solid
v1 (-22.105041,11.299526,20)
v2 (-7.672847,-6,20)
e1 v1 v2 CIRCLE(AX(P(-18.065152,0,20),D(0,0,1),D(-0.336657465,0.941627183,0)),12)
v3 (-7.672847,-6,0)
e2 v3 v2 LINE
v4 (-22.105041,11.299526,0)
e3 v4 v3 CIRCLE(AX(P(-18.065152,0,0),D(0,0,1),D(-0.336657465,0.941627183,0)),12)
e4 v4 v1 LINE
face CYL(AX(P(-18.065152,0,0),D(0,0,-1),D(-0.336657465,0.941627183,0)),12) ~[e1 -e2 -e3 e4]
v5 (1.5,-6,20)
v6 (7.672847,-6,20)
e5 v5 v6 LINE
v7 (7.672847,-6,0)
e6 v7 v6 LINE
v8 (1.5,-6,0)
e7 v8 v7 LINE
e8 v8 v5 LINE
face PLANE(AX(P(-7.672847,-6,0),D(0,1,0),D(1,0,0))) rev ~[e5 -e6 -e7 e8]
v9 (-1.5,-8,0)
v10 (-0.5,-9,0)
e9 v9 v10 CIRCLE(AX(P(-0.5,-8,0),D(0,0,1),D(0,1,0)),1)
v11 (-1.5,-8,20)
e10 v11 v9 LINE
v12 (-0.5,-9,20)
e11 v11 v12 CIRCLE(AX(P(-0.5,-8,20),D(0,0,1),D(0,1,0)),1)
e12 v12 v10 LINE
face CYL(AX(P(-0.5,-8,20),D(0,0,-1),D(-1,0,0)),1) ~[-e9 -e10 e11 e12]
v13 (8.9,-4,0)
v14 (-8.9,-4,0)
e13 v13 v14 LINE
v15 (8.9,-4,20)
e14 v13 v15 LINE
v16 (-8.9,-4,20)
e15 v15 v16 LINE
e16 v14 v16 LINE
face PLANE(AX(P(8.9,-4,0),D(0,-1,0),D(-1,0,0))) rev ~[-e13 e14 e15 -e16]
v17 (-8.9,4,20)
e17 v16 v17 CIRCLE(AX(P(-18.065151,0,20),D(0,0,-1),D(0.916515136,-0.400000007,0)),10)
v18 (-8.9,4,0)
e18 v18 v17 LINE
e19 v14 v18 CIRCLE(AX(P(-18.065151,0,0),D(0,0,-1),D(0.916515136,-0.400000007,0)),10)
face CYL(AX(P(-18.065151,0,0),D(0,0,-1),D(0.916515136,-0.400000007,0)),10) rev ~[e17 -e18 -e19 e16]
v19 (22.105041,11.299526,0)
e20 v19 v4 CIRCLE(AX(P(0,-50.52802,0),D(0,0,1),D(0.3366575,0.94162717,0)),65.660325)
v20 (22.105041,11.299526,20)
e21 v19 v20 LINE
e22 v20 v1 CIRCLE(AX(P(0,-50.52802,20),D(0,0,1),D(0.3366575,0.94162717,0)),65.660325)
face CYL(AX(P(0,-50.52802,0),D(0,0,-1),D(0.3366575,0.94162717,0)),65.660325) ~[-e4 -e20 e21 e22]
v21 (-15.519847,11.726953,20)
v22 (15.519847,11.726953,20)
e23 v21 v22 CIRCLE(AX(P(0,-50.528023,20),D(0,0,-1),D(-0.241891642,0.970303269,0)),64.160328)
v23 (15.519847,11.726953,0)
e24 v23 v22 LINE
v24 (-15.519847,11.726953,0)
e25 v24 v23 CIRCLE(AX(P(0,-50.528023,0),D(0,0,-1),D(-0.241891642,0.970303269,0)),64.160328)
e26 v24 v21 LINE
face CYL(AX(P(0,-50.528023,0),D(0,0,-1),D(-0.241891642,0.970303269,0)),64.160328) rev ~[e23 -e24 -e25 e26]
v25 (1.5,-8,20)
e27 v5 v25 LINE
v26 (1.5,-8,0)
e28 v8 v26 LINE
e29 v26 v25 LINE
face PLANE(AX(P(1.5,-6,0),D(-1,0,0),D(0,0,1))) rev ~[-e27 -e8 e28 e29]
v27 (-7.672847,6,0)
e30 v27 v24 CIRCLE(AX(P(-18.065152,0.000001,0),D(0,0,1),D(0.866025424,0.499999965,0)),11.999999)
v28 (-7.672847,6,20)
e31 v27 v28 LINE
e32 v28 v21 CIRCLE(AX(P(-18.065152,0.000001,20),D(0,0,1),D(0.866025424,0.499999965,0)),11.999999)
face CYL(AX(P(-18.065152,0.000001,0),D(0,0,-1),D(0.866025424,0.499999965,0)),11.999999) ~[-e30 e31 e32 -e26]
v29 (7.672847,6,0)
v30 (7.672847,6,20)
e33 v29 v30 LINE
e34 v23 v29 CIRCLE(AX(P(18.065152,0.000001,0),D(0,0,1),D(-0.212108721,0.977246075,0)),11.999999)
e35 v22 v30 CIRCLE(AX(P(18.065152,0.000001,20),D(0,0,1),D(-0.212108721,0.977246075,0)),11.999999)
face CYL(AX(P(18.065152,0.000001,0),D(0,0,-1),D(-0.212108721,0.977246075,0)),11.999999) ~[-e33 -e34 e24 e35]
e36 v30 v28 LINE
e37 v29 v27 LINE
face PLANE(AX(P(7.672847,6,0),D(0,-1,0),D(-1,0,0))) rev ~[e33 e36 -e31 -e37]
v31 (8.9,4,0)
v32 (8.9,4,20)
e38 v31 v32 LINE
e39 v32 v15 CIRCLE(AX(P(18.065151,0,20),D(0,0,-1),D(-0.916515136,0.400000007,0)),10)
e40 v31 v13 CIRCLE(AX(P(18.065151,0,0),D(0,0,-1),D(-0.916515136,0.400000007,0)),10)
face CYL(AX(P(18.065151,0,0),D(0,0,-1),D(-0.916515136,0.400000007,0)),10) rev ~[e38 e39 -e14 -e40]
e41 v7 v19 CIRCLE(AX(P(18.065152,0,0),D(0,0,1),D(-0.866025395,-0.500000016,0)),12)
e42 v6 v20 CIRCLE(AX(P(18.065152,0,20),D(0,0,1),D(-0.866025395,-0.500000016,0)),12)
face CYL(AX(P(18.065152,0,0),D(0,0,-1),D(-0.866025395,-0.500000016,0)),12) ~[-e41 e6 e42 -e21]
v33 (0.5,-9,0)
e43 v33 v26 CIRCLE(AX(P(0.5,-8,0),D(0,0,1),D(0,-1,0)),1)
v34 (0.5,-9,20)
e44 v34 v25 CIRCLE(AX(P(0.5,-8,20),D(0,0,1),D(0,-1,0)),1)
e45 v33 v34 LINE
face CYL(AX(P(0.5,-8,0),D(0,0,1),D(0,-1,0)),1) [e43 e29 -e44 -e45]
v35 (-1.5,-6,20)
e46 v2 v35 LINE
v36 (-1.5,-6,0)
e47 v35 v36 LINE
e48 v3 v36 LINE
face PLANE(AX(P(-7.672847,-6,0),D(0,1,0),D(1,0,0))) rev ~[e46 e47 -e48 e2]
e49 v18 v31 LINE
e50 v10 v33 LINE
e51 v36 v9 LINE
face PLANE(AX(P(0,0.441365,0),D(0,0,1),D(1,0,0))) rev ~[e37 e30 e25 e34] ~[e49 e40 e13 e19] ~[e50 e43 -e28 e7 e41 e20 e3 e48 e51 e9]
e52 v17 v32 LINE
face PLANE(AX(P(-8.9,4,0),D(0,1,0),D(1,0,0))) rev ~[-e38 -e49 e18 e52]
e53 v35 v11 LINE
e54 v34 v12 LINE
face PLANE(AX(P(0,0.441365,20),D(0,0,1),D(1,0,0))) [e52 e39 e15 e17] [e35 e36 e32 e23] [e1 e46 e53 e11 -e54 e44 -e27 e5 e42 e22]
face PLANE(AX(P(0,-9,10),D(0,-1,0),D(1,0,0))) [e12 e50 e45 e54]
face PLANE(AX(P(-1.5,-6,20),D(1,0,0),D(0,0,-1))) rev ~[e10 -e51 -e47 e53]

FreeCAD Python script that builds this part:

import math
import FreeCAD as App
import Part
import Sketcher
from FreeCAD import Vector
Q = App.Units.Quantity


def edges_at(feature, points):
    """Names of the edges that pass closest to the given points."""
    edges = feature.Shape.Edges
    near = lambda p: min(range(len(edges)), key=lambda i: edges[i].distToShape(Part.Vertex(*p))[0])
    return sorted({f"Edge{near(p) + 1}" for p in points})

doc = App.newDocument("Part")
params = doc.addObject("Spreadsheet::Sheet", "Params")
for row, (alias, value) in enumerate([
    ("sketch1_radius", "12 mm"),
    ("sketch1_radius2", "10 mm"),
    ("sketch1_width", "17.8 mm"),
    ("pad1_length", "20 mm"),
    ("sketch2_width", "3 mm"),
    ("sketch2_height", "20 mm"),
    ("pad2_length", "3 mm"),
    ("fillet_radius", "1 mm"),
], start=1):
    params.set(f"A{row}", alias)
    params.set(f"B{row}", "=" + value)
    params.setAlias(f"B{row}", alias)

body = doc.addObject("PartDesign::Body", "Body")

sketch1 = doc.addObject("Sketcher::SketchObject", "Sketch")
body.addObject(sketch1)
sketch1.AttachmentSupport = (doc.XY_Plane, [""])
sketch1.MapMode = "FlatFace"
sketch1.addGeometry([
    Part.ArcOfCircle(Part.Circle(Vector(-18, 0, 0), Vector(0, 0, 1), 12), math.radians(110), math.radians(330)),
    Part.LineSegment(Vector(-8, -6, 0), Vector(8, -6, 0)),
    Part.ArcOfCircle(Part.Circle(Vector(18, 0, 0), Vector(0, 0, 1), 12), math.radians(-150), math.radians(70)),
    Part.ArcOfCircle(Part.Circle(Vector(0, -51, 0), Vector(0, 0, 1), 66), math.radians(70), math.radians(110)),
    Part.ArcOfCircle(Part.Circle(Vector(-18, 0, 0), Vector(0, 0, 1), 12), math.radians(30), math.radians(78)),
    Part.ArcOfCircle(Part.Circle(Vector(0, -51, 0), Vector(0, 0, 1), 64), math.radians(76), math.radians(104)),
    Part.ArcOfCircle(Part.Circle(Vector(18, 0, 0), Vector(0, 0, 1), 12), math.radians(102), math.radians(150)),
    Part.LineSegment(Vector(8, 6, 0), Vector(-8, 6, 0)),
    Part.ArcOfCircle(Part.Circle(Vector(-18, 0, 0), Vector(0, 0, 1), 10), math.radians(24), math.radians(336)),
    Part.LineSegment(Vector(-9, 4, 0), Vector(9, 4, 0)),
    Part.ArcOfCircle(Part.Circle(Vector(18, 0, 0), Vector(0, 0, 1), 10), math.radians(-156), math.radians(156)),
    Part.LineSegment(Vector(9, -4, 0), Vector(-9, -4, 0)),
], False)
sketch1.addConstraint([
    Sketcher.Constraint("Coincident", 0, 2, 1, 1),
    Sketcher.Constraint("Coincident", 1, 2, 2, 1),
    Sketcher.Constraint("Tangent", 2, 2, 3, 1),
    Sketcher.Constraint("Tangent", 3, 2, 0, 1),
    Sketcher.Constraint("Coincident", 4, 2, 5, 2),
    Sketcher.Constraint("Coincident", 5, 1, 6, 1),
    Sketcher.Constraint("Coincident", 6, 2, 7, 1),
    Sketcher.Constraint("Coincident", 7, 2, 4, 1),
    Sketcher.Constraint("Coincident", 8, 1, 9, 1),
    Sketcher.Constraint("Coincident", 9, 2, 10, 2),
    Sketcher.Constraint("Coincident", 10, 1, 11, 1),
    Sketcher.Constraint("Coincident", 11, 2, 8, 2),
    Sketcher.Constraint("Horizontal", 1),
    Sketcher.Constraint("Horizontal", 7),
    Sketcher.Constraint("Horizontal", 9),
    Sketcher.Constraint("Horizontal", 11),
    Sketcher.Constraint("Coincident", 4, 3, 0, 3),
    Sketcher.Constraint("Coincident", 5, 3, 3, 3),
    Sketcher.Constraint("Coincident", 6, 3, 2, 3),
    Sketcher.Constraint("Coincident", 8, 3, 0, 3),
    Sketcher.Constraint("Coincident", 10, 3, 2, 3),
    Sketcher.Constraint("Equal", 0, 2),
    Sketcher.Constraint("Equal", 2, 4),
    Sketcher.Constraint("Equal", 4, 6),
    Sketcher.Constraint("Equal", 8, 10),
    Sketcher.Constraint("Symmetric", 0, 3, 2, 3, -1, 1),
    Sketcher.Constraint("Symmetric", 1, 2, 6, 2, -1),
    Sketcher.Constraint("Vertical", 9, 2, 10, 1),
    Sketcher.Constraint("Radius", 0, Q("12 mm")),
    Sketcher.Constraint("Radius", 8, Q("10 mm")),
    Sketcher.Constraint("DistanceX", 9, 1, 9, 2, Q("17.8 mm")),
    Sketcher.Constraint("DistanceY", 0, 2, -1, 1, Q("6 mm")),
    Sketcher.Constraint("DistanceY", -1, 1, 8, 1, Q("4 mm")),
    Sketcher.Constraint("Radius", 3, Q("65.660325 mm")),
    Sketcher.Constraint("Radius", 5, Q("64.160328 mm")),
])
sketch1.setExpression("Constraints[28]", "Params.sketch1_radius")
sketch1.setExpression("Constraints[29]", "Params.sketch1_radius2")
sketch1.setExpression("Constraints[30]", "Params.sketch1_width")
pad1 = doc.addObject("PartDesign::Pad", "Pad")
body.addObject(pad1)
pad1.Profile = sketch1
pad1.setExpression("Length", "Params.pad1_length")

sketch2 = doc.addObject("Sketcher::SketchObject", "Sketch001")
body.addObject(sketch2)
sketch2.AttachmentSupport = (doc.XZ_Plane, [""])
sketch2.MapMode = "FlatFace"
sketch2.AttachmentOffset = App.Placement(Vector(0, 0, 6), App.Rotation())
sketch2.addGeometry([
    Part.LineSegment(Vector(1.5, 20, 0), Vector(-1.5, 20, 0)),
    Part.LineSegment(Vector(-1.5, 20, 0), Vector(-1.5, 0, 0)),
    Part.LineSegment(Vector(-1.5, 0, 0), Vector(1.5, 0, 0)),
    Part.LineSegment(Vector(1.5, 0, 0), Vector(1.5, 20, 0)),
], False)
sketch2.addConstraint([
    Sketcher.Constraint("Coincident", 0, 2, 1, 1),
    Sketcher.Constraint("Coincident", 1, 2, 2, 1),
    Sketcher.Constraint("Coincident", 2, 2, 3, 1),
    Sketcher.Constraint("Coincident", 3, 2, 0, 1),
    Sketcher.Constraint("Horizontal", 0),
    Sketcher.Constraint("Vertical", 1),
    Sketcher.Constraint("Horizontal", 2),
    Sketcher.Constraint("Vertical", 3),
    Sketcher.Constraint("Symmetric", 1, 2, 2, 2, -1, 1),
    Sketcher.Constraint("DistanceX", 0, 2, 0, 1, Q("3 mm")),
    Sketcher.Constraint("DistanceY", 1, 2, 1, 1, Q("20 mm")),
])
sketch2.setExpression("Constraints[9]", "Params.sketch2_width")
sketch2.setExpression("Constraints[10]", "Params.sketch2_height")
pad2 = doc.addObject("PartDesign::Pad", "Pad001")
body.addObject(pad2)
pad2.Profile = sketch2
pad2.setExpression("Length", "Params.pad2_length")
doc.recompute()

fillet = doc.addObject("PartDesign::Fillet", "Fillet")
body.addObject(fillet)
fillet.Base = (pad2, edges_at(pad2, [(1.5, -9, 10), (-1.5, -9, 10)]))
fillet.setExpression("Radius", "Params.fillet_radius")

doc.recompute()
